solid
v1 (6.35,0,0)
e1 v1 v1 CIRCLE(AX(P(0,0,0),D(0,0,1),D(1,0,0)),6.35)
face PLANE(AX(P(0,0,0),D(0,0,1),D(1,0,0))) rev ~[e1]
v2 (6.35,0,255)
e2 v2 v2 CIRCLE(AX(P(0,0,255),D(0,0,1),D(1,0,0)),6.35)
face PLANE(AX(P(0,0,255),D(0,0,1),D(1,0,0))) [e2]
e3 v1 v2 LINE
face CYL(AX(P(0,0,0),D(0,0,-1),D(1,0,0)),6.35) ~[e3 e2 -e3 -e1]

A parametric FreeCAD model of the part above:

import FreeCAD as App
import Part
import Sketcher
from FreeCAD import Vector
Q = App.Units.Quantity

doc = App.newDocument("Part")
body = doc.addObject("PartDesign::Body", "Body")

# Sketch on XY plane
sketch1 = body.newObject("Sketcher::SketchObject", "Sketch")
sketch1.AttachmentSupport = (doc.getObject("XY_Plane"), [""])
sketch1.MapMode = "FlatFace"
sketch1.addGeometry(Part.Circle(Vector(0, 0, 0), Vector(0, 0, 1), 6), False)
sketch1.addConstraint([
    Sketcher.Constraint("Coincident", 0, 3, -1, 1),
    Sketcher.Constraint("Diameter", 0, Q("12.7 mm")),
])
pad1 = body.newObject("PartDesign::Pad", "Pad")
pad1.Profile = sketch1
pad1.Length = 255

doc.recompute()
